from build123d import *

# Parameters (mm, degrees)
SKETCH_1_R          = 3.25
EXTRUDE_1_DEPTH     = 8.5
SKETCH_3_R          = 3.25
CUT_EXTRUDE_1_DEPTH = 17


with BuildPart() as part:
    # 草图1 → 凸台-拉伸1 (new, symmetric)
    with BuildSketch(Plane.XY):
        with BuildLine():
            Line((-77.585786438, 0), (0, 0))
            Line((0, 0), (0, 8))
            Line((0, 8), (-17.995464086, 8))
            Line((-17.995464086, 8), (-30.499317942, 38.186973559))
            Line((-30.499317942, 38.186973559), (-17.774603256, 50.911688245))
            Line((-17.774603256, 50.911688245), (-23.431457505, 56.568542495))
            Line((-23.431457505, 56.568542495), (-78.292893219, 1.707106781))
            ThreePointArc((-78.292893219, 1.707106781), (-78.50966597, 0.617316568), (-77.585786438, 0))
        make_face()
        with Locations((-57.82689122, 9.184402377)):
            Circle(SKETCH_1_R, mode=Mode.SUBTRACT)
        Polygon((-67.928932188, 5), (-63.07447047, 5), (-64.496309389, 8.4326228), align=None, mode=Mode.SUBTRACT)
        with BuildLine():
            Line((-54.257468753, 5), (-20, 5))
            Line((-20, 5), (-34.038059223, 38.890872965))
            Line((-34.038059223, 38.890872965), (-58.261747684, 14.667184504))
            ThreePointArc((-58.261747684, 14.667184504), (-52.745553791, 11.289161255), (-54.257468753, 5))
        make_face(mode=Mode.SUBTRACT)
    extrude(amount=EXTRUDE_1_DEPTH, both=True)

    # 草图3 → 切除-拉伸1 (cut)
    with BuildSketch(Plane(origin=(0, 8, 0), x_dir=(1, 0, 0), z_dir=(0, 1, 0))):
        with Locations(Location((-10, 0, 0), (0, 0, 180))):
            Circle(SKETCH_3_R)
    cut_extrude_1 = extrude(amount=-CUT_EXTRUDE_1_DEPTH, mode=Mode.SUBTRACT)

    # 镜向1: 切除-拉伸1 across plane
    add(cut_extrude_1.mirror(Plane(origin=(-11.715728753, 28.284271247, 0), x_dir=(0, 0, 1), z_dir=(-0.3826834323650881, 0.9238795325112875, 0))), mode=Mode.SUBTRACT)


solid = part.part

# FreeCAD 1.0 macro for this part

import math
import FreeCAD as App
import Part
import Sketcher

V = App.Vector
Q = App.Units.Quantity

doc = App.newDocument("Part")
body = doc.addObject("PartDesign::Body", "Body")

# Sketch on XY plane
sketch1 = body.newObject("Sketcher::SketchObject", "Sketch")
sketch1.AttachmentSupport = (doc.getObject("XY_Plane"), [""])
sketch1.MapMode = "FlatFace"
sketch1.addGeometry([
    Part.LineSegment(V(-77.585786, 0, 0), V(0, 0, 0)),  # 0
    Part.LineSegment(V(0, 0, 0), V(0, 8, 0)),  # 1
    Part.LineSegment(V(0, 8, 0), V(-17.995464, 8, 0)),  # 2
    Part.LineSegment(V(-17.995464, 8, 0), V(-30.499318, 38.186974, 0)),  # 3
    Part.LineSegment(V(-30.499318, 38.186974, 0), V(-17.774603, 50.911688, 0)),  # 4
    Part.LineSegment(V(-17.774603, 50.911688, 0), V(-23.431458, 56.568542, 0)),  # 5
    Part.LineSegment(V(-23.431458, 56.568542, 0), V(-78.292893, 1.707107, 0)),  # 6
    Part.ArcOfCircle(Part.Circle(V(-77.585786, 1, 0), V(0, 0, 1), 1), math.radians(135), math.radians(270)),  # 7
    Part.LineSegment(V(-63.07447, 5, 0), V(-67.928932, 5, 0)),  # 8
    Part.LineSegment(V(-67.928932, 5, 0), V(-64.496309, 8.432623, 0)),  # 9
    Part.LineSegment(V(-64.496309, 8.432623, 0), V(-63.07447, 5, 0)),  # 10
    Part.Circle(V(-57.826891, 9.184402, 0), V(0, 0, 1), 3.25),  # 11
    Part.LineSegment(V(-20, 5, 0), V(-54.257469, 5, 0)),  # 12
    Part.ArcOfCircle(Part.Circle(V(-57.826891, 9.184402, 0), V(0, 0, 1), 5.5), math.radians(-49.534813), math.radians(94.534813)),  # 13
    Part.LineSegment(V(-58.261748, 14.667185, 0), V(-34.038059, 38.890873, 0)),  # 14
    Part.LineSegment(V(-34.038059, 38.890873, 0), V(-20, 5, 0)),  # 15
], False)
sketch1.addConstraint([
    Sketcher.Constraint("Coincident", 0, 2, 1, 1),
    Sketcher.Constraint("Coincident", 1, 2, 2, 1),
    Sketcher.Constraint("Coincident", 2, 2, 3, 1),
    Sketcher.Constraint("Coincident", 3, 2, 4, 1),
    Sketcher.Constraint("Coincident", 4, 2, 5, 1),
    Sketcher.Constraint("Coincident", 5, 2, 6, 1),
    Sketcher.Constraint("Tangent", 6, 2, 7, 1),
    Sketcher.Constraint("Tangent", 7, 2, 0, 1),
    Sketcher.Constraint("Coincident", 8, 2, 9, 1),
    Sketcher.Constraint("Coincident", 9, 2, 10, 1),
    Sketcher.Constraint("Coincident", 10, 2, 8, 1),
    Sketcher.Constraint("Coincident", 12, 2, 13, 1),
    Sketcher.Constraint("Coincident", 13, 2, 14, 1),
    Sketcher.Constraint("Coincident", 14, 2, 15, 1),
    Sketcher.Constraint("Coincident", 15, 2, 12, 1),
    Sketcher.Constraint("Horizontal", 0),
    Sketcher.Constraint("Vertical", 1),
    Sketcher.Constraint("Horizontal", 2),
    Sketcher.Constraint("Horizontal", 8),
    Sketcher.Constraint("Horizontal", 12),
    Sketcher.Constraint("Coincident", 0, 2, -1, 1),
    Sketcher.Constraint("Coincident", 13, 3, 11, 3),
    Sketcher.Constraint("Perpendicular", 4, 5),
    Sketcher.Constraint("Perpendicular", 5, 6),
    Sketcher.Constraint("Parallel", 6, 9),
    Sketcher.Constraint("Parallel", 3, 10),
    Sketcher.Constraint("Parallel", 9, 14),
    Sketcher.Constraint("Parallel", 10, 15),
    Sketcher.Constraint("Horizontal", 10, 2, 12, 2),
    Sketcher.Constraint("Radius", 7, Q("1 mm")),
    Sketcher.Constraint("Diameter", 11, Q("6.5 mm")),
    Sketcher.Constraint("Radius", 13, Q("5.5 mm")),
    Sketcher.Constraint("DistanceY", 1, 1, 1, 2, Q("8 mm")),
    Sketcher.Constraint("Angle", 4, Q("45 deg")),
    Sketcher.Constraint("Distance", 5, Q("8 mm")),
    Sketcher.Constraint("DistanceY", -1, 1, 8, 2, Q("5 mm")),
    Sketcher.Constraint("DistanceX", 15, 2, -1, 1, Q("20 mm")),
    Sketcher.Constraint("Angle", 3, Q("112.5 deg")),
    Sketcher.Constraint("DistanceX", 6, 2, 11, 3, Q("20.466002 mm")),
    Sketcher.Constraint("DistanceX", 10, 2, 12, 2, Q("8.817002 mm")),
    Sketcher.Constraint("DistanceX", 8, 2, 8, 1, Q("4.854462 mm")),
    Sketcher.Constraint("DistanceX", 12, 2, 12, 1, Q("34.257469 mm")),
    Sketcher.Constraint("DistanceY", 3, 2, 14, 2, Q("0.703899 mm")),
    Sketcher.Constraint("DistanceX", 14, 2, 5, 2, Q("10.606602 mm")),
    Sketcher.Constraint("Distance", 14, Q("34.257469 mm")),
    Sketcher.Constraint("DistanceX", 0, 1, 0, 2, Q("77.585786 mm")),
])
pad1 = body.newObject("PartDesign::Pad", "Pad")
pad1.Profile = sketch1
pad1.Length = 17
pad1.Midplane = True

# Sketch on XZ plane
sketch2 = body.newObject("Sketcher::SketchObject", "Sketch001")
sketch2.AttachmentSupport = (doc.getObject("XZ_Plane"), [""])
sketch2.MapMode = "FlatFace"
sketch2.AttachmentOffset = App.Placement(V(0, 0, -8), App.Rotation())
sketch2.addGeometry(Part.Circle(V(-10, 0, 0), V(0, 0, 1), 3.25), False)
sketch2.addConstraint([
    Sketcher.Constraint("PointOnObject", 0, 3, -1),
    Sketcher.Constraint("Diameter", 0, Q("6.5 mm")),
    Sketcher.Constraint("DistanceX", 0, 3, -1, 1, Q("10 mm")),
])
pocket1 = body.newObject("PartDesign::Pocket", "Pocket")
pocket1.Profile = sketch2
pocket1.Length = 17
pocket1.Reversed = True
doc.recompute()

datumplane = body.newObject("PartDesign::Plane", "DatumPlane")
datumplane.Placement = App.Placement(V(-11.715729, 28.284271, 0), App.Rotation(V(0.923879533, 0.382683432, 0), V(0, 0, -1), V(-0.382683432, 0.923879533, 0), "ZXY"))
mirrored = body.newObject("PartDesign::Mirrored", "Mirrored")
mirrored.Originals = [pocket1]
mirrored.MirrorPlane = (datumplane, [""])
body.Tip = mirrored

doc.recompute()
